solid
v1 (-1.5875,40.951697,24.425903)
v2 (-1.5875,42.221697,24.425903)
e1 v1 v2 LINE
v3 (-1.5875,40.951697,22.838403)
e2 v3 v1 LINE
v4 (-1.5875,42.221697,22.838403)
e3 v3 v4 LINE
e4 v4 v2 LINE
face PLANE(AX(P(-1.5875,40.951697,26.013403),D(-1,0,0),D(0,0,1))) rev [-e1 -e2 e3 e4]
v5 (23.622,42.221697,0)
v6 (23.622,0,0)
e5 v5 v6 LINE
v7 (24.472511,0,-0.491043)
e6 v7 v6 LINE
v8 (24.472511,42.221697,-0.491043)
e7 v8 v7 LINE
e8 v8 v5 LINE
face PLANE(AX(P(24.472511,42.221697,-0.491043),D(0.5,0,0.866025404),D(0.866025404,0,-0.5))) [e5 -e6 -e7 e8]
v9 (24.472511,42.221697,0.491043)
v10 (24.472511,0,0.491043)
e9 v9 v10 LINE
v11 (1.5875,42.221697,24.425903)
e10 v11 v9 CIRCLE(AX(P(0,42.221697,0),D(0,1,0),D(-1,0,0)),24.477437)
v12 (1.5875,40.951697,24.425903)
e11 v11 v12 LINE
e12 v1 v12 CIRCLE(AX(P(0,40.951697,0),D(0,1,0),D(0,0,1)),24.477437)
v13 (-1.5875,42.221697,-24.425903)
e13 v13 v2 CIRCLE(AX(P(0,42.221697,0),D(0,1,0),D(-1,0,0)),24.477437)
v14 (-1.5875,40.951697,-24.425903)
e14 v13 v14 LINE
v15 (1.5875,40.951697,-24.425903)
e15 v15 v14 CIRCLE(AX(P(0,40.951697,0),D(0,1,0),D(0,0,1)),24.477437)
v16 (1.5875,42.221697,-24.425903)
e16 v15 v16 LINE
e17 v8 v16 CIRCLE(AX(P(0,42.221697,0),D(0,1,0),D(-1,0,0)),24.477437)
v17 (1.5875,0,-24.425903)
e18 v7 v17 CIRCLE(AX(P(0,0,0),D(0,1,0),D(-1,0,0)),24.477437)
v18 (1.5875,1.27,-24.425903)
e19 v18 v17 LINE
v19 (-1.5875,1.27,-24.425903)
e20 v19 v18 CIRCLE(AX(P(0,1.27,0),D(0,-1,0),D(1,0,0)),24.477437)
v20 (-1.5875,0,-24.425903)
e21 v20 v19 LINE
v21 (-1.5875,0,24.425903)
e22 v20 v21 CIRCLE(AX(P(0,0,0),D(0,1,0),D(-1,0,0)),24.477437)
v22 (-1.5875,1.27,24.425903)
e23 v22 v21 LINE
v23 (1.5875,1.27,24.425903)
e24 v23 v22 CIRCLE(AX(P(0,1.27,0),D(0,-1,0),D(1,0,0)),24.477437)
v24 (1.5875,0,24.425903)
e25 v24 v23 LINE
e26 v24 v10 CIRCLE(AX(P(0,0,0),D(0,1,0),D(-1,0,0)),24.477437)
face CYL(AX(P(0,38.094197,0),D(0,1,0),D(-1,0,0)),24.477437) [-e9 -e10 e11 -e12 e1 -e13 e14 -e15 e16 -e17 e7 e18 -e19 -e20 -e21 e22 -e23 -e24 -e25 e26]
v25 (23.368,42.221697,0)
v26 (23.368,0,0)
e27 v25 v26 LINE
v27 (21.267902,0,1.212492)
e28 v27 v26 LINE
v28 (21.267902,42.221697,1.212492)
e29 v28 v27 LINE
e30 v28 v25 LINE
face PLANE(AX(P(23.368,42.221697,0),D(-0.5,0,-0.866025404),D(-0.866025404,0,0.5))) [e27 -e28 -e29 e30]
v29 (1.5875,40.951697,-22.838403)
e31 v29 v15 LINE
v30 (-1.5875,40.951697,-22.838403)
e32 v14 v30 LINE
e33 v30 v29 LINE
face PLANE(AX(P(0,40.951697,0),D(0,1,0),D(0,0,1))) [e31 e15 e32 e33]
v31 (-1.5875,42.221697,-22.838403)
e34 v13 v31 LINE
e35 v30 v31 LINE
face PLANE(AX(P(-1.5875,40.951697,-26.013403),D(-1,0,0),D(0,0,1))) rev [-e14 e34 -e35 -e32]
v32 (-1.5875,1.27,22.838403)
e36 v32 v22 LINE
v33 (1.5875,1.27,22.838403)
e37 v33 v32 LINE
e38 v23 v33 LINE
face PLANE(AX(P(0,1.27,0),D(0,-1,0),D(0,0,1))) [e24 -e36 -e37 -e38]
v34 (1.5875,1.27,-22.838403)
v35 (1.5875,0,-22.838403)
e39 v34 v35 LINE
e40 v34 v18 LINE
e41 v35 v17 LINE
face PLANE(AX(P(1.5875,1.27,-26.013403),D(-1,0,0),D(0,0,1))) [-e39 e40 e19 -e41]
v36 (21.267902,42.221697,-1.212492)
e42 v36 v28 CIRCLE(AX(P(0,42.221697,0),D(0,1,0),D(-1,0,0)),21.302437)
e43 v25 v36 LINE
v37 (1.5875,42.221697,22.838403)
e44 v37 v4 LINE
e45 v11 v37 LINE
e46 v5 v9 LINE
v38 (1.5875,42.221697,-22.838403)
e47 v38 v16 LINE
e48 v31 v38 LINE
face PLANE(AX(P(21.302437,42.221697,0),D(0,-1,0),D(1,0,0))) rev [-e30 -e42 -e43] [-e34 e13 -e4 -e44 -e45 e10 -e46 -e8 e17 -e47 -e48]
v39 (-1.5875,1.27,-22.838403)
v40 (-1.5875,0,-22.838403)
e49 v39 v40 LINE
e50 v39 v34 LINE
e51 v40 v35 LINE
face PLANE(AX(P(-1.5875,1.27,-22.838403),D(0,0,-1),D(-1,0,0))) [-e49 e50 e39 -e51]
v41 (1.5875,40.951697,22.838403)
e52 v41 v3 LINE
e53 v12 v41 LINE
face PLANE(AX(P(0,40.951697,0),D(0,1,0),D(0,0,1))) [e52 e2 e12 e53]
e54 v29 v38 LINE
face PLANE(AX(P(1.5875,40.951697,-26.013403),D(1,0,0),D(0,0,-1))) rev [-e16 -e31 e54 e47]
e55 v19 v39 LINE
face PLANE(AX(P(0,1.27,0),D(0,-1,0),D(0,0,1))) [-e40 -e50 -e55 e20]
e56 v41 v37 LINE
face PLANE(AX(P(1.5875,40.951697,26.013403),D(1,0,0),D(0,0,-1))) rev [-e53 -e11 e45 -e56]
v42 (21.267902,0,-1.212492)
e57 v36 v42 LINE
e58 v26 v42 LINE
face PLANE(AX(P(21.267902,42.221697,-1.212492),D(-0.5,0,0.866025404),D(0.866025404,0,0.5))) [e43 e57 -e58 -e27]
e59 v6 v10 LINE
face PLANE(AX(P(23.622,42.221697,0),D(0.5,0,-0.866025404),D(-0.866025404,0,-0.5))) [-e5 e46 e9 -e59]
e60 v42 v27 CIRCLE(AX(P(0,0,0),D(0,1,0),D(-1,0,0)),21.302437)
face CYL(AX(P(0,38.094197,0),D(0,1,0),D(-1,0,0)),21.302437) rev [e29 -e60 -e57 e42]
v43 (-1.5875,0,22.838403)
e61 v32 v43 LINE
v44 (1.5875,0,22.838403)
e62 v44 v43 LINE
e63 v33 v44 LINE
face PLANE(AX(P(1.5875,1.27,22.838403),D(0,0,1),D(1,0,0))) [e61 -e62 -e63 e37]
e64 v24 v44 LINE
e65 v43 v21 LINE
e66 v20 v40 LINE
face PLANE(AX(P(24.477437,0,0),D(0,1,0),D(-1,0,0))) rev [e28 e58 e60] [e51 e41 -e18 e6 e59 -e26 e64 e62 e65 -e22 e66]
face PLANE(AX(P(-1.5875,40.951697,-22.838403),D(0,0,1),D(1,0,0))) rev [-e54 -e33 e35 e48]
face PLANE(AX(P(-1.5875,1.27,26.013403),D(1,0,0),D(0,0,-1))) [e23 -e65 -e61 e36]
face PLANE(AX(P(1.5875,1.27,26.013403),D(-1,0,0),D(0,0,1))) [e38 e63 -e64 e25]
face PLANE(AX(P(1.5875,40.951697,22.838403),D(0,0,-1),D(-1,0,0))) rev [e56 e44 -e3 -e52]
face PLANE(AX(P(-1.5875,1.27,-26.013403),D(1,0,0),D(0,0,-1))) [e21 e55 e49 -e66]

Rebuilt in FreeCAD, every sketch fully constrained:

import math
import FreeCAD as App
import Part
import Sketcher
Q = App.Units.Quantity

doc = App.newDocument("Part")
body = doc.addObject("PartDesign::Body", "Body")

sketch1 = body.newObject("Sketcher::SketchObject", "Sketch")
sketch1.AttachmentSupport = (doc.getObject("XY_Plane"), [""])
sketch1.MapMode = "FlatFace"
sketch1.addGeometry(Part.LineSegment(App.Vector(21.3, 42.2, 0), App.Vector(21.3, 0, 0)), False)
sketch1.addGeometry(Part.LineSegment(App.Vector(21.3, 0, 0), App.Vector(24.5, 0, 0)), False)
sketch1.addGeometry(Part.LineSegment(App.Vector(24.5, 0, 0), App.Vector(24.5, 42.2, 0)), False)
sketch1.addGeometry(Part.LineSegment(App.Vector(24.5, 42.2, 0), App.Vector(21.3, 42.2, 0)), False)
sketch1.addConstraint(Sketcher.Constraint("Coincident", 0, 2, 1, 1))
sketch1.addConstraint(Sketcher.Constraint("Coincident", 1, 2, 2, 1))
sketch1.addConstraint(Sketcher.Constraint("Coincident", 2, 2, 3, 1))
sketch1.addConstraint(Sketcher.Constraint("Coincident", 3, 2, 0, 1))
sketch1.addConstraint(Sketcher.Constraint("Vertical", 0))
sketch1.addConstraint(Sketcher.Constraint("Horizontal", 1))
sketch1.addConstraint(Sketcher.Constraint("Vertical", 2))
sketch1.addConstraint(Sketcher.Constraint("Horizontal", 3))
sketch1.addConstraint(Sketcher.Constraint("PointOnObject", 0, 2, -1))
sketch1.addConstraint(Sketcher.Constraint("DistanceX", 1, 1, 1, 2, Q("0.125 in")))
sketch1.addConstraint(Sketcher.Constraint("DistanceY", 0, 2, 0, 1, Q("42.221697 mm")))
sketch1.addConstraint(Sketcher.Constraint("DistanceX", -1, 1, 0, 2, Q("21.302437 mm")))
revolution = body.newObject("PartDesign::Revolution", "Revolution")
revolution.Profile = sketch1
revolution.ReferenceAxis = (sketch1, ["V_Axis"])
revolution.Angle = 360

sketch2 = body.newObject("Sketcher::SketchObject", "Sketch001")
sketch2.AttachmentSupport = (doc.getObject("XZ_Plane"), [""])
sketch2.MapMode = "FlatFace"
sketch2.AttachmentOffset = App.Placement(App.Vector(0, 0, -42.221697), App.Rotation())
sketch2.addGeometry(Part.LineSegment(App.Vector(-1.6, -26, 0), App.Vector(-1.6, -22.8, 0)), False)
sketch2.addGeometry(Part.LineSegment(App.Vector(-1.6, -22.8, 0), App.Vector(1.6, -22.8, 0)), False)
sketch2.addGeometry(Part.LineSegment(App.Vector(1.6, -22.8, 0), App.Vector(1.6, -26, 0)), False)
sketch2.addGeometry(Part.LineSegment(App.Vector(1.6, -26, 0), App.Vector(-1.6, -26, 0)), False)
sketch2.addGeometry(Part.LineSegment(App.Vector(-1.6, 22.8, 0), App.Vector(-1.6, 26, 0)), False)
sketch2.addGeometry(Part.LineSegment(App.Vector(-1.6, 26, 0), App.Vector(1.6, 26, 0)), False)
sketch2.addGeometry(Part.LineSegment(App.Vector(1.6, 26, 0), App.Vector(1.6, 22.8, 0)), False)
sketch2.addGeometry(Part.LineSegment(App.Vector(1.6, 22.8, 0), App.Vector(-1.6, 22.8, 0)), False)
sketch2.addConstraint(Sketcher.Constraint("Coincident", 0, 2, 1, 1))
sketch2.addConstraint(Sketcher.Constraint("Coincident", 1, 2, 2, 1))
sketch2.addConstraint(Sketcher.Constraint("Coincident", 2, 2, 3, 1))
sketch2.addConstraint(Sketcher.Constraint("Coincident", 3, 2, 0, 1))
sketch2.addConstraint(Sketcher.Constraint("Coincident", 4, 2, 5, 1))
sketch2.addConstraint(Sketcher.Constraint("Coincident", 5, 2, 6, 1))
sketch2.addConstraint(Sketcher.Constraint("Coincident", 6, 2, 7, 1))
sketch2.addConstraint(Sketcher.Constraint("Coincident", 7, 2, 4, 1))
sketch2.addConstraint(Sketcher.Constraint("Vertical", 0))
sketch2.addConstraint(Sketcher.Constraint("Horizontal", 1))
sketch2.addConstraint(Sketcher.Constraint("Vertical", 2))
sketch2.addConstraint(Sketcher.Constraint("Horizontal", 3))
sketch2.addConstraint(Sketcher.Constraint("Vertical", 4))
sketch2.addConstraint(Sketcher.Constraint("Horizontal", 5))
sketch2.addConstraint(Sketcher.Constraint("Vertical", 6))
sketch2.addConstraint(Sketcher.Constraint("Horizontal", 7))
sketch2.addConstraint(Sketcher.Constraint("Symmetric", 2, 2, 4, 2, -1, 1))
sketch2.addConstraint(Sketcher.Constraint("Symmetric", 0, 2, 6, 2, -1, 1))
sketch2.addConstraint(Sketcher.Constraint("Vertical", 3, 2, 4, 2))
sketch2.addConstraint(Sketcher.Constraint("Equal", 7, 0))
sketch2.addConstraint(Sketcher.Constraint("DistanceX", 1, 1, 1, 2, Q("0.125 in")))
sketch2.addConstraint(Sketcher.Constraint("DistanceY", 0, 2, -1, 1, Q("22.838403 mm")))
pocket1 = body.newObject("PartDesign::Pocket", "Pocket")
pocket1.Profile = sketch2
pocket1.Length = Q("0.05 in")
pocket1.Reversed = True
doc.recompute()

datumplane = body.newObject("PartDesign::Plane", "DatumPlane")
datumplane.AttachmentSupport = (doc.getObject("XZ_Plane"), [""])
datumplane.MapMode = "FlatFace"
datumplane.AttachmentOffset = App.Placement(App.Vector(0, 0, -21.110849), App.Rotation())
mirrored = body.newObject("PartDesign::Mirrored", "Mirrored")
mirrored.Originals = [pocket1]
mirrored.MirrorPlane = (datumplane, [""])
body.Tip = mirrored

sketch3 = body.newObject("Sketcher::SketchObject", "Sketch002")
sketch3.AttachmentSupport = (doc.getObject("XZ_Plane"), [""])
sketch3.MapMode = "FlatFace"
sketch3.AttachmentOffset = App.Placement(App.Vector(0, 0, -21.110849), App.Rotation())
sketch3.addGeometry(Part.LineSegment(App.Vector(24.5, -0.5, 0), App.Vector(23.6, 0, 0)), False)
sketch3.addGeometry(Part.LineSegment(App.Vector(23.6, 0, 0), App.Vector(24.5, 0.5, 0)), False)
sketch3.addGeometry(Part.ArcOfCircle(Part.Circle(App.Vector(0, 0, 0), App.Vector(0, 0, 1), 24.5), math.radians(-1.15), math.radians(1.15)), False)
sketch3.addGeometry(Part.LineSegment(App.Vector(23.4, 0, 0), App.Vector(21.3, -1.2, 0)), False)
sketch3.addGeometry(Part.ArcOfCircle(Part.Circle(App.Vector(0, 0, 0), App.Vector(0, 0, 1), 21.3), math.radians(-3.26), math.radians(3.26)), False)
sketch3.addGeometry(Part.LineSegment(App.Vector(21.3, 1.2, 0), App.Vector(23.4, 0, 0)), False)
sketch3.addConstraint(Sketcher.Constraint("Coincident", 0, 2, 1, 1))
sketch3.addConstraint(Sketcher.Constraint("Coincident", 1, 2, 2, 2))
sketch3.addConstraint(Sketcher.Constraint("Coincident", 2, 1, 0, 1))
sketch3.addConstraint(Sketcher.Constraint("Coincident", 3, 2, 4, 1))
sketch3.addConstraint(Sketcher.Constraint("Coincident", 4, 2, 5, 1))
sketch3.addConstraint(Sketcher.Constraint("Coincident", 5, 2, 3, 1))
sketch3.addConstraint(Sketcher.Constraint("Coincident", 2, 3, -1, 1))
sketch3.addConstraint(Sketcher.Constraint("Coincident", 4, 3, -1, 1))
sketch3.addConstraint(Sketcher.Constraint("PointOnObject", 0, 2, -1))
sketch3.addConstraint(Sketcher.Constraint("PointOnObject", 5, 2, -1))
sketch3.addConstraint(Sketcher.Constraint("Parallel", 1, 3))
sketch3.addConstraint(Sketcher.Constraint("Parallel", 0, 5))
sketch3.addConstraint(Sketcher.Constraint("Vertical", 1, 2, 2, 1))
sketch3.addConstraint(Sketcher.Constraint("Angle", 0, Q("150 deg")))
sketch3.addConstraint(Sketcher.Constraint("DistanceX", -1, 1, 0, 2, Q("0.93 in")))
sketch3.addConstraint(Sketcher.Constraint("DistanceX", -1, 1, 5, 2, Q("0.92 in")))
sketch3.addConstraint(Sketcher.Constraint("Radius", 2, Q("24.477439 mm")))
sketch3.addConstraint(Sketcher.Constraint("Radius", 4, Q("21.302437 mm")))
pocket2 = body.newObject("PartDesign::Pocket", "Pocket001")
pocket2.Profile = sketch3
pocket2.Type = "ThroughAll"
pocket2.Midplane = True

doc.recompute()
